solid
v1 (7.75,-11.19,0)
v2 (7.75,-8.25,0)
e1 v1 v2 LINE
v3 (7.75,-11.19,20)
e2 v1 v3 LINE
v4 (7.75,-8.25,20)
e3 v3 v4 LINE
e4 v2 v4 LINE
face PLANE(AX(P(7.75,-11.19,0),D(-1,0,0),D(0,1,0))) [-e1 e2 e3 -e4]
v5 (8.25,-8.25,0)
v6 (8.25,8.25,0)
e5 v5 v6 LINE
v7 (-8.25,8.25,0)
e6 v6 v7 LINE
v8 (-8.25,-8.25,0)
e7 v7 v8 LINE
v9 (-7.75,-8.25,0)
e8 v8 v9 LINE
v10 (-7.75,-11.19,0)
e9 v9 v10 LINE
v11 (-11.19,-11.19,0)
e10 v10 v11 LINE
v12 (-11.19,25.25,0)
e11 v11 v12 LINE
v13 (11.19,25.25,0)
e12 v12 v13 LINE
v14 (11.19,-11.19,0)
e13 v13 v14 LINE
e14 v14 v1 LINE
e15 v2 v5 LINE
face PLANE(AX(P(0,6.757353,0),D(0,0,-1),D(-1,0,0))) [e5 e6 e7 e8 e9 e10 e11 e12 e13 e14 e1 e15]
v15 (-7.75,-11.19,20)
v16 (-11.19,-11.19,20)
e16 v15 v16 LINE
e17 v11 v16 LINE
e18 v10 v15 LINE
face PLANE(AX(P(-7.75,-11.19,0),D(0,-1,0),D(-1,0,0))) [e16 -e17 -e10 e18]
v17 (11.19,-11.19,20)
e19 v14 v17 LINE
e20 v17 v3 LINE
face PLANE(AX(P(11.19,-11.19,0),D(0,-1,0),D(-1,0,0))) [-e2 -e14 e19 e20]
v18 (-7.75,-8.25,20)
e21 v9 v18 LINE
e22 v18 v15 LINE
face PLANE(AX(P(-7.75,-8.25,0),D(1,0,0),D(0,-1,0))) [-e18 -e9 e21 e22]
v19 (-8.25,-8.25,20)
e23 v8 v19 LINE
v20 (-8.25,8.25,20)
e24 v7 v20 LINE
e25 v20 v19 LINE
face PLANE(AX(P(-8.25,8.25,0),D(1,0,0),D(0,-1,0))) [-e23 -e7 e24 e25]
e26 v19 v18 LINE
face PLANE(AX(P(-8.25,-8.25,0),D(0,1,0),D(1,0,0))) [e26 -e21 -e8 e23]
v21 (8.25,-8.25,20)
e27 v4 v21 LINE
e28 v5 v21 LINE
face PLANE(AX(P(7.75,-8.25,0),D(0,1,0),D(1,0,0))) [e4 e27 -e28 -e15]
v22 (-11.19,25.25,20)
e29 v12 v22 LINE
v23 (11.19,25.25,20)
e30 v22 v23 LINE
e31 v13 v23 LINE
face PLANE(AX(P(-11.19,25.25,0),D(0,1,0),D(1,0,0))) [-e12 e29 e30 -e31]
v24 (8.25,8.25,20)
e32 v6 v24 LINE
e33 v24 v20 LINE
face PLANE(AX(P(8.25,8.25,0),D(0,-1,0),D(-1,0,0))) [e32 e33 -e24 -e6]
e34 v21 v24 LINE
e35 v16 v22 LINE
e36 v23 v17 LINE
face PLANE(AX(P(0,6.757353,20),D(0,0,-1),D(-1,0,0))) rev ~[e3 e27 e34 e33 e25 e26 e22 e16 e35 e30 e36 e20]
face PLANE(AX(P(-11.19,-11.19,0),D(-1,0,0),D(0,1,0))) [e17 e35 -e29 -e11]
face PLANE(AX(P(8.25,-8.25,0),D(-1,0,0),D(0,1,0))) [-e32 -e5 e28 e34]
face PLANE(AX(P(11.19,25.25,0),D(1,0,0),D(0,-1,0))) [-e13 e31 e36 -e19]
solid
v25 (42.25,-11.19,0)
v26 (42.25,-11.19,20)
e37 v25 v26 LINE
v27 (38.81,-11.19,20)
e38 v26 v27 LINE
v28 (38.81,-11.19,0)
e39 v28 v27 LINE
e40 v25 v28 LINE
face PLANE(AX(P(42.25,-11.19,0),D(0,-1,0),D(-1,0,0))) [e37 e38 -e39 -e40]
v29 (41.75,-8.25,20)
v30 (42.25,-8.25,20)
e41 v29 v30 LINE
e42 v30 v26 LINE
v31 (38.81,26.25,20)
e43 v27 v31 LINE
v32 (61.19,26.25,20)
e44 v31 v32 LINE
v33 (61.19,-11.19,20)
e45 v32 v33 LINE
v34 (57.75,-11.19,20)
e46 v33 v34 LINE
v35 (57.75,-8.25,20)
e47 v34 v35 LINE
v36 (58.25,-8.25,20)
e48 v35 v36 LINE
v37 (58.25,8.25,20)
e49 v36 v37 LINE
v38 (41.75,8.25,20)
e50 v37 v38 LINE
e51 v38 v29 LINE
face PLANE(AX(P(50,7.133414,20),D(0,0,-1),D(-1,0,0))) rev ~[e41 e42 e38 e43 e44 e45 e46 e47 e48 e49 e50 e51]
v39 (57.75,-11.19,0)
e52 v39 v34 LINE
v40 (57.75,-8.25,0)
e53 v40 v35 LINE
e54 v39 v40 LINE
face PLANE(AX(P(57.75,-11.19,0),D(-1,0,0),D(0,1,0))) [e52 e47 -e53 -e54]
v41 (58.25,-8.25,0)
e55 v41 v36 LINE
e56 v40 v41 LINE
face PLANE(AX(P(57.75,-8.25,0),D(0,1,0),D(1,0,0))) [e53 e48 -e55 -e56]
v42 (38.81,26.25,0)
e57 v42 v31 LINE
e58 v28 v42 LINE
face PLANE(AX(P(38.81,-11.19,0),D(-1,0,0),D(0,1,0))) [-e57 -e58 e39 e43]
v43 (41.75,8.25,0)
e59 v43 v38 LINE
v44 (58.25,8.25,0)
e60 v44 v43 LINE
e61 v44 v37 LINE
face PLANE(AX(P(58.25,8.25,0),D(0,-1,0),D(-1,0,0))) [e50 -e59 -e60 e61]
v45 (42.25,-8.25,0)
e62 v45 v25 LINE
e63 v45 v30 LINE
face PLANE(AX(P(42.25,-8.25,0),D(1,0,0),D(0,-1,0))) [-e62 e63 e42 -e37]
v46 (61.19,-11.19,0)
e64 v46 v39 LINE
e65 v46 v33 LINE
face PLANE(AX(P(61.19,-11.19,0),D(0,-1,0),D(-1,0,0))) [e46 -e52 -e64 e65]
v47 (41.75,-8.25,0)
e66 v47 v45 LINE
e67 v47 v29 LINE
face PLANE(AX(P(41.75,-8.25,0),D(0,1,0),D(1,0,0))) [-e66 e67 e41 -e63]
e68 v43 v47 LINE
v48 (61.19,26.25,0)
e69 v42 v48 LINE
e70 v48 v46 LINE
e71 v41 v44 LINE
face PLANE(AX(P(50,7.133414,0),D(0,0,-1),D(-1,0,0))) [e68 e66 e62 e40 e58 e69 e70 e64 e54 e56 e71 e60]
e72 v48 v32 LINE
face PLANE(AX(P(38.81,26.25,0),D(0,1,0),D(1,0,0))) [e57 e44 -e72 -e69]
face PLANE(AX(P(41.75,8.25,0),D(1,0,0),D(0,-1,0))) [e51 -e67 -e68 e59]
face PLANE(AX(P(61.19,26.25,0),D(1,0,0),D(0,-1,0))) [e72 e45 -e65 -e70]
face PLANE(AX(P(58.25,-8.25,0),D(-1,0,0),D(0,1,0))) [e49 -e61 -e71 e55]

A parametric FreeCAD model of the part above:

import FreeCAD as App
import Part
import Sketcher
from FreeCAD import Vector


def add_polygon(sketch, points):
    """Adds a closed chain of lines whose ends are joined by coincident constraints."""
    first, n = sketch.GeometryCount, len(points)
    for a, b in zip(points, points[1:] + points[:1]):
        sketch.addGeometry(Part.LineSegment(App.Vector(*a, 0), App.Vector(*b, 0)), False)
    for i in range(n):
        sketch.addConstraint(Sketcher.Constraint("Coincident", first + i, 2, first + (i + 1) % n, 1))

doc = App.newDocument("Part")
body = doc.addObject("PartDesign::Body", "Body")

sketch1 = doc.addObject("Sketcher::SketchObject", "Sketch")
body.addObject(sketch1)
sketch1.AttachmentSupport = (doc.XY_Plane, [""])
sketch1.MapMode = "FlatFace"
add_polygon(sketch1, [(8.2, 8.2), (8.2, -8.2), (7.8, -8.2), (7.8, -11.2), (11.2, -11.2), (11.2, 25.2), (-11.2, 25.2), (-11.2, -11.2), (-7.8, -11.2), (-7.8, -8.2), (-8.2, -8.2), (-8.2, 8.2)])
sketch1.addConstraint(Sketcher.Constraint("Vertical", 0))
sketch1.addConstraint(Sketcher.Constraint("Horizontal", 1))
sketch1.addConstraint(Sketcher.Constraint("Vertical", 2))
sketch1.addConstraint(Sketcher.Constraint("Horizontal", 3))
sketch1.addConstraint(Sketcher.Constraint("Vertical", 4))
sketch1.addConstraint(Sketcher.Constraint("Horizontal", 5))
sketch1.addConstraint(Sketcher.Constraint("Vertical", 6))
sketch1.addConstraint(Sketcher.Constraint("Horizontal", 7))
sketch1.addConstraint(Sketcher.Constraint("Vertical", 8))
sketch1.addConstraint(Sketcher.Constraint("Horizontal", 9))
sketch1.addConstraint(Sketcher.Constraint("Vertical", 10))
sketch1.addConstraint(Sketcher.Constraint("Horizontal", 11))
sketch1.addConstraint(Sketcher.Constraint("Symmetric", 0, 2, 10, 2, -1, 1))
sketch1.addConstraint(Sketcher.Constraint("Symmetric", 3, 2, 6, 2, -2))
sketch1.addConstraint(Sketcher.Constraint("Symmetric", 1, 2, 8, 2, -2))
sketch1.addConstraint(Sketcher.Constraint("Equal", 11, 0))
sketch1.addConstraint(Sketcher.Constraint("DistanceX", 1, 2, 1, 1, 0.5))
sketch1.addConstraint(Sketcher.Constraint("DistanceX", 11, 1, 11, 2, 16.5))
sketch1.addConstraint(Sketcher.Constraint("DistanceY", 10, 2, 5, 2, 17.0))
sketch1.addConstraint(Sketcher.Constraint("DistanceX", 3, 1, 3, 2, 3.44))
sketch1.addConstraint(Sketcher.Constraint("DistanceY", 2, 2, 2, 1, 2.94))
pad1 = doc.addObject("PartDesign::Pad", "Pad")
body.addObject(pad1)
pad1.Profile = sketch1
pad1.Length = 20
body2 = doc.addObject("PartDesign::Body", "Body001")

sketch2 = doc.addObject("Sketcher::SketchObject", "Sketch001")
body2.addObject(sketch2)
sketch2.AttachmentSupport = (doc.getObject("XY_Plane001"), [""])
sketch2.MapMode = "FlatFace"
add_polygon(sketch2, [(58.2, 8.2), (58.2, -8.2), (57.8, -8.2), (57.8, -11.2), (61.2, -11.2), (61.2, 26.2), (38.8, 26.2), (38.8, -11.2), (42.2, -11.2), (42.2, -8.2), (41.8, -8.2), (41.8, 8.2)])
sketch2.addConstraint(Sketcher.Constraint("Vertical", 0))
sketch2.addConstraint(Sketcher.Constraint("Horizontal", 1))
sketch2.addConstraint(Sketcher.Constraint("Vertical", 2))
sketch2.addConstraint(Sketcher.Constraint("Horizontal", 3))
sketch2.addConstraint(Sketcher.Constraint("Vertical", 4))
sketch2.addConstraint(Sketcher.Constraint("Horizontal", 5))
sketch2.addConstraint(Sketcher.Constraint("Vertical", 6))
sketch2.addConstraint(Sketcher.Constraint("Horizontal", 7))
sketch2.addConstraint(Sketcher.Constraint("Vertical", 8))
sketch2.addConstraint(Sketcher.Constraint("Horizontal", 9))
sketch2.addConstraint(Sketcher.Constraint("Vertical", 10))
sketch2.addConstraint(Sketcher.Constraint("Horizontal", 11))
sketch2.addConstraint(Sketcher.Constraint("Horizontal", 3, 2, 6, 2))
sketch2.addConstraint(Sketcher.Constraint("Horizontal", 1, 2, 8, 2))
sketch2.addConstraint(Sketcher.Constraint("Equal", 3, 7))
sketch2.addConstraint(Sketcher.Constraint("Equal", 1, 9))
sketch2.addConstraint(Sketcher.Constraint("Equal", 11, 0))
sketch2.addConstraint(Sketcher.Constraint("DistanceX", 1, 2, 1, 1, 0.5))
sketch2.addConstraint(Sketcher.Constraint("DistanceX", 11, 1, 11, 2, 16.5))
sketch2.addConstraint(Sketcher.Constraint("DistanceY", 10, 2, 5, 2, 18.0))
sketch2.addConstraint(Sketcher.Constraint("DistanceX", 3, 1, 3, 2, 3.44))
sketch2.addConstraint(Sketcher.Constraint("DistanceY", 2, 2, 2, 1, 2.94))
sketch2.addConstraint(Sketcher.Constraint("DistanceX", -1, 1, 0, 2, 58.25))
sketch2.addConstraint(Sketcher.Constraint("DistanceY", 0, 2, -1, 1, 8.25))
pad2 = doc.addObject("PartDesign::Pad", "Pad001")
body2.addObject(pad2)
pad2.Profile = sketch2
pad2.Length = 20

doc.recompute()
